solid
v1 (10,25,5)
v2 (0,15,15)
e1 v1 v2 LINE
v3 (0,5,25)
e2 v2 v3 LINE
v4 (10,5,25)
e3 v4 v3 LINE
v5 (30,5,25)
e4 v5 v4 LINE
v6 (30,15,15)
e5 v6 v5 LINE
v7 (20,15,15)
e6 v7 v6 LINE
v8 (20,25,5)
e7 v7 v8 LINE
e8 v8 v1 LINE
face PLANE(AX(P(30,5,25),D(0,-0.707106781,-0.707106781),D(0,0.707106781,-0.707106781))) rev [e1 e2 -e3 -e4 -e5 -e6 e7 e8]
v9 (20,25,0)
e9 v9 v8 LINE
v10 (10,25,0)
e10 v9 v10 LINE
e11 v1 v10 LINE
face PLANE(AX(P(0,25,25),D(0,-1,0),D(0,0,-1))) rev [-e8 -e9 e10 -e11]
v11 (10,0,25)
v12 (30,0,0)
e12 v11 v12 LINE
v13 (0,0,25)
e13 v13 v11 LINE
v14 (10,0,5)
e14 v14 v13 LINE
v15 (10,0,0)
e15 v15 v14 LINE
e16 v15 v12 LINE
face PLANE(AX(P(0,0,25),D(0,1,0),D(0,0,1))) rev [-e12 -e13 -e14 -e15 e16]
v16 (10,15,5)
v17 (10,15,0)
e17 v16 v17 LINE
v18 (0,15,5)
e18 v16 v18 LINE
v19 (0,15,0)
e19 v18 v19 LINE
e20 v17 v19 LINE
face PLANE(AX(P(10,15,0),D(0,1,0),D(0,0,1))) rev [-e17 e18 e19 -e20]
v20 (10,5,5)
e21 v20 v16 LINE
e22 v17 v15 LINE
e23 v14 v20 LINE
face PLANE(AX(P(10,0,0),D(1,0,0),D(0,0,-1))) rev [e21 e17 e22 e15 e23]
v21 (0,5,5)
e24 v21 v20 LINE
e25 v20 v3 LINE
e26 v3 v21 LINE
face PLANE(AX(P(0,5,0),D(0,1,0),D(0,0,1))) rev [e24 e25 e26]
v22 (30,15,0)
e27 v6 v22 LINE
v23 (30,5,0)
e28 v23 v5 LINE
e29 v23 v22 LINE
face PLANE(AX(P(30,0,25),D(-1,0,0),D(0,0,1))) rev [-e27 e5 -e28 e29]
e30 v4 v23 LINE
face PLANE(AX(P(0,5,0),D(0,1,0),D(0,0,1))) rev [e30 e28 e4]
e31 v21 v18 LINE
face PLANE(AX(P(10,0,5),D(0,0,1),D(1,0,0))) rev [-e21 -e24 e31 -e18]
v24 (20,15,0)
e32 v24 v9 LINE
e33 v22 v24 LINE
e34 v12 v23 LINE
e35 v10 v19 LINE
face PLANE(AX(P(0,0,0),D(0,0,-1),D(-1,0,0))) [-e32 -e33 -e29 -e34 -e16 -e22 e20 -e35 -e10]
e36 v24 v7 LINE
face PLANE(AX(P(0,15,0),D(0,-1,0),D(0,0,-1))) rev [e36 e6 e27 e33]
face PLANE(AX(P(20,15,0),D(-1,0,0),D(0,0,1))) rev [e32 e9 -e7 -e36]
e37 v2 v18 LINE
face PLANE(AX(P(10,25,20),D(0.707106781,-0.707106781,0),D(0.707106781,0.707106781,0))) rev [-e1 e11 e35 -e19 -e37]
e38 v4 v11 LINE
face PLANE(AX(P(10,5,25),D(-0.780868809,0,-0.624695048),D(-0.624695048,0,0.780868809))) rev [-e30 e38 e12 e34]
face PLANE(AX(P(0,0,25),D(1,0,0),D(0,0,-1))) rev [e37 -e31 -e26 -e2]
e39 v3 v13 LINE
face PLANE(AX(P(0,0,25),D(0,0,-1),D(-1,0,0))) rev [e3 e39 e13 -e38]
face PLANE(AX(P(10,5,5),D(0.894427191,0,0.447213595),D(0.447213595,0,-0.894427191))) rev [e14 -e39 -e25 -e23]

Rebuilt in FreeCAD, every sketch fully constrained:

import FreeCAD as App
import Part
import Sketcher

V = App.Vector
Q = App.Units.Quantity


def add_polygon(sketch, points):
    """Adds a closed chain of lines whose ends are joined by coincident constraints."""
    first, n = sketch.GeometryCount, len(points)
    for a, b in zip(points, points[1:] + points[:1]):
        sketch.addGeometry(Part.LineSegment(App.Vector(*a, 0), App.Vector(*b, 0)), False)
    for i in range(n):
        sketch.addConstraint(Sketcher.Constraint("Coincident", first + i, 2, first + (i + 1) % n, 1))

doc = App.newDocument("Part")
body = doc.addObject("PartDesign::Body", "Body")

# Sketch on XY plane
sketch1 = body.newObject("Sketcher::SketchObject", "Sketch")
sketch1.AttachmentSupport = (doc.getObject("XY_Plane"), [""])
sketch1.MapMode = "FlatFace"
add_polygon(sketch1, [(0, 25), (0, 0), (30, 0), (30, 25)])  # lines 0-3
sketch1.addConstraint([
    Sketcher.Constraint("Vertical", 0),
    Sketcher.Constraint("Horizontal", 1),
    Sketcher.Constraint("Vertical", 2),
    Sketcher.Constraint("Horizontal", 3),
    Sketcher.Constraint("Coincident", 0, 2, -1, 1),
    Sketcher.Constraint("DistanceX", 1, 1, 1, 2, Q("30 mm")),
    Sketcher.Constraint("DistanceY", 0, 2, 0, 1, Q("25 mm")),
])
pad1 = body.newObject("PartDesign::Pad", "Pad")
pad1.Profile = sketch1
pad1.Length = 25

# Sketch on YZ plane
sketch2 = body.newObject("Sketcher::SketchObject", "Sketch001")
sketch2.AttachmentSupport = (doc.getObject("YZ_Plane"), [""])
sketch2.MapMode = "FlatFace"
add_polygon(sketch2, [(5, 25), (25, 25), (25, 5)])  # lines 0-2
sketch2.addConstraint([
    Sketcher.Constraint("Horizontal", 0),
    Sketcher.Constraint("Vertical", 1),
    Sketcher.Constraint("Equal", 0, 1),
    Sketcher.Constraint("DistanceX", 0, 1, 0, 2, Q("20 mm")),
    Sketcher.Constraint("DistanceX", -1, 1, 0, 2, Q("25 mm")),
    Sketcher.Constraint("DistanceY", -1, 1, 0, 2, Q("25 mm")),
])
pocket1 = body.newObject("PartDesign::Pocket", "Pocket")
pocket1.Profile = sketch2
pocket1.Length = 30
pocket1.Reversed = True

# Sketch on YZ plane
sketch3 = body.newObject("Sketcher::SketchObject", "Sketch002")
sketch3.AttachmentSupport = (doc.getObject("YZ_Plane"), [""])
sketch3.MapMode = "FlatFace"
add_polygon(sketch3, [(15, 0), (0, 0), (0, 5), (15, 5)])  # lines 0-3
sketch3.addConstraint([
    Sketcher.Constraint("Horizontal", 0),
    Sketcher.Constraint("Vertical", 1),
    Sketcher.Constraint("Horizontal", 2),
    Sketcher.Constraint("Vertical", 3),
    Sketcher.Constraint("Coincident", 0, 2, -1, 1),
    Sketcher.Constraint("DistanceX", 0, 2, 0, 1, Q("15 mm")),
    Sketcher.Constraint("DistanceY", 1, 1, 1, 2, Q("5 mm")),
])
pocket2 = body.newObject("PartDesign::Pocket", "Pocket001")
pocket2.Profile = sketch3
pocket2.Length = 10
pocket2.Reversed = True

# Sketch on XZ plane
sketch4 = body.newObject("Sketcher::SketchObject", "Sketch003")
sketch4.AttachmentSupport = (doc.getObject("XZ_Plane"), [""])
sketch4.MapMode = "FlatFace"
add_polygon(sketch4, [(0, 25), (0, 5), (10, 5)])  # lines 0-2
sketch4.addConstraint([
    Sketcher.Constraint("Vertical", 0),
    Sketcher.Constraint("Horizontal", 1),
    Sketcher.Constraint("PointOnObject", 0, 2, -2),
    Sketcher.Constraint("DistanceX", 1, 1, 1, 2, Q("10 mm")),
    Sketcher.Constraint("DistanceY", 0, 2, 0, 1, Q("20 mm")),
    Sketcher.Constraint("DistanceY", -1, 1, 0, 2, Q("5 mm")),
])
pocket3 = body.newObject("PartDesign::Pocket", "Pocket002")
pocket3.Profile = sketch4
pocket3.Length = 5

# Sketch on XZ plane
sketch5 = body.newObject("Sketcher::SketchObject", "Sketch004")
sketch5.AttachmentSupport = (doc.getObject("XZ_Plane"), [""])
sketch5.MapMode = "FlatFace"
sketch5.AttachmentOffset = App.Placement(V(0, 0, -25), App.Rotation())
add_polygon(sketch5, [(20, 0), (20, 10), (30, 10), (30, 0)])  # lines 0-3
sketch5.addConstraint([
    Sketcher.Constraint("Vertical", 0),
    Sketcher.Constraint("Horizontal", 1),
    Sketcher.Constraint("Vertical", 2),
    Sketcher.Constraint("Horizontal", 3),
    Sketcher.Constraint("PointOnObject", 2, 2, -1),
    Sketcher.Constraint("Equal", 3, 0),
    Sketcher.Constraint("DistanceX", 1, 1, 1, 2, Q("10 mm")),
    Sketcher.Constraint("DistanceX", -1, 1, 0, 2, Q("20 mm")),
])
pocket4 = body.newObject("PartDesign::Pocket", "Pocket003")
pocket4.Profile = sketch5
pocket4.Length = 10
pocket4.Reversed = True

# Sketch on YZ plane
sketch6 = body.newObject("Sketcher::SketchObject", "Sketch005")
sketch6.AttachmentSupport = (doc.getObject("YZ_Plane"), [""])
sketch6.MapMode = "FlatFace"
sketch6.AttachmentOffset = App.Placement(V(0, 0, 30), App.Rotation())
add_polygon(sketch6, [(15, 15), (15, 10), (20, 10)])  # lines 0-2
sketch6.addConstraint([
    Sketcher.Constraint("Vertical", 0),
    Sketcher.Constraint("Horizontal", 1),
    Sketcher.Constraint("Equal", 1, 0),
    Sketcher.Constraint("DistanceX", 1, 1, 1, 2, Q("5 mm")),
    Sketcher.Constraint("DistanceX", -1, 1, 0, 2, Q("15 mm")),
    Sketcher.Constraint("DistanceY", -1, 1, 0, 2, Q("10 mm")),
])
pocket5 = body.newObject("PartDesign::Pocket", "Pocket004")
pocket5.Profile = sketch6
pocket5.Length = 10

# Sketch on XY plane
sketch7 = body.newObject("Sketcher::SketchObject", "Sketch006")
sketch7.AttachmentSupport = (doc.getObject("XY_Plane"), [""])
sketch7.MapMode = "FlatFace"
add_polygon(sketch7, [(0, 25), (10, 25), (0, 15)])  # lines 0-2
sketch7.addConstraint([
    Sketcher.Constraint("Horizontal", 0),
    Sketcher.Constraint("Vertical", 2),
    Sketcher.Constraint("PointOnObject", 1, 2, -2),
    Sketcher.Constraint("Equal", 0, 2),
    Sketcher.Constraint("DistanceX", 0, 1, 0, 2, Q("10 mm")),
    Sketcher.Constraint("DistanceY", -1, 1, 0, 2, Q("25 mm")),
])
pocket6 = body.newObject("PartDesign::Pocket", "Pocket005")
pocket6.Profile = sketch7
pocket6.Length = 20
pocket6.Reversed = True

# Sketch on XZ plane
sketch8 = body.newObject("Sketcher::SketchObject", "Sketch007")
sketch8.AttachmentSupport = (doc.getObject("XZ_Plane"), [""])
sketch8.MapMode = "FlatFace"
add_polygon(sketch8, [(30, 0), (30, 25), (10, 25)])  # lines 0-2
sketch8.addConstraint([
    Sketcher.Constraint("Vertical", 0),
    Sketcher.Constraint("Horizontal", 1),
    Sketcher.Constraint("PointOnObject", 2, 2, -1),
    Sketcher.Constraint("DistanceX", 1, 2, 1, 1, Q("20 mm")),
    Sketcher.Constraint("DistanceY", 0, 1, 0, 2, Q("25 mm")),
    Sketcher.Constraint("DistanceX", -1, 1, 0, 2, Q("30 mm")),
])
pocket7 = body.newObject("PartDesign::Pocket", "Pocket006")
pocket7.Profile = sketch8
pocket7.Length = 5

doc.recompute()
